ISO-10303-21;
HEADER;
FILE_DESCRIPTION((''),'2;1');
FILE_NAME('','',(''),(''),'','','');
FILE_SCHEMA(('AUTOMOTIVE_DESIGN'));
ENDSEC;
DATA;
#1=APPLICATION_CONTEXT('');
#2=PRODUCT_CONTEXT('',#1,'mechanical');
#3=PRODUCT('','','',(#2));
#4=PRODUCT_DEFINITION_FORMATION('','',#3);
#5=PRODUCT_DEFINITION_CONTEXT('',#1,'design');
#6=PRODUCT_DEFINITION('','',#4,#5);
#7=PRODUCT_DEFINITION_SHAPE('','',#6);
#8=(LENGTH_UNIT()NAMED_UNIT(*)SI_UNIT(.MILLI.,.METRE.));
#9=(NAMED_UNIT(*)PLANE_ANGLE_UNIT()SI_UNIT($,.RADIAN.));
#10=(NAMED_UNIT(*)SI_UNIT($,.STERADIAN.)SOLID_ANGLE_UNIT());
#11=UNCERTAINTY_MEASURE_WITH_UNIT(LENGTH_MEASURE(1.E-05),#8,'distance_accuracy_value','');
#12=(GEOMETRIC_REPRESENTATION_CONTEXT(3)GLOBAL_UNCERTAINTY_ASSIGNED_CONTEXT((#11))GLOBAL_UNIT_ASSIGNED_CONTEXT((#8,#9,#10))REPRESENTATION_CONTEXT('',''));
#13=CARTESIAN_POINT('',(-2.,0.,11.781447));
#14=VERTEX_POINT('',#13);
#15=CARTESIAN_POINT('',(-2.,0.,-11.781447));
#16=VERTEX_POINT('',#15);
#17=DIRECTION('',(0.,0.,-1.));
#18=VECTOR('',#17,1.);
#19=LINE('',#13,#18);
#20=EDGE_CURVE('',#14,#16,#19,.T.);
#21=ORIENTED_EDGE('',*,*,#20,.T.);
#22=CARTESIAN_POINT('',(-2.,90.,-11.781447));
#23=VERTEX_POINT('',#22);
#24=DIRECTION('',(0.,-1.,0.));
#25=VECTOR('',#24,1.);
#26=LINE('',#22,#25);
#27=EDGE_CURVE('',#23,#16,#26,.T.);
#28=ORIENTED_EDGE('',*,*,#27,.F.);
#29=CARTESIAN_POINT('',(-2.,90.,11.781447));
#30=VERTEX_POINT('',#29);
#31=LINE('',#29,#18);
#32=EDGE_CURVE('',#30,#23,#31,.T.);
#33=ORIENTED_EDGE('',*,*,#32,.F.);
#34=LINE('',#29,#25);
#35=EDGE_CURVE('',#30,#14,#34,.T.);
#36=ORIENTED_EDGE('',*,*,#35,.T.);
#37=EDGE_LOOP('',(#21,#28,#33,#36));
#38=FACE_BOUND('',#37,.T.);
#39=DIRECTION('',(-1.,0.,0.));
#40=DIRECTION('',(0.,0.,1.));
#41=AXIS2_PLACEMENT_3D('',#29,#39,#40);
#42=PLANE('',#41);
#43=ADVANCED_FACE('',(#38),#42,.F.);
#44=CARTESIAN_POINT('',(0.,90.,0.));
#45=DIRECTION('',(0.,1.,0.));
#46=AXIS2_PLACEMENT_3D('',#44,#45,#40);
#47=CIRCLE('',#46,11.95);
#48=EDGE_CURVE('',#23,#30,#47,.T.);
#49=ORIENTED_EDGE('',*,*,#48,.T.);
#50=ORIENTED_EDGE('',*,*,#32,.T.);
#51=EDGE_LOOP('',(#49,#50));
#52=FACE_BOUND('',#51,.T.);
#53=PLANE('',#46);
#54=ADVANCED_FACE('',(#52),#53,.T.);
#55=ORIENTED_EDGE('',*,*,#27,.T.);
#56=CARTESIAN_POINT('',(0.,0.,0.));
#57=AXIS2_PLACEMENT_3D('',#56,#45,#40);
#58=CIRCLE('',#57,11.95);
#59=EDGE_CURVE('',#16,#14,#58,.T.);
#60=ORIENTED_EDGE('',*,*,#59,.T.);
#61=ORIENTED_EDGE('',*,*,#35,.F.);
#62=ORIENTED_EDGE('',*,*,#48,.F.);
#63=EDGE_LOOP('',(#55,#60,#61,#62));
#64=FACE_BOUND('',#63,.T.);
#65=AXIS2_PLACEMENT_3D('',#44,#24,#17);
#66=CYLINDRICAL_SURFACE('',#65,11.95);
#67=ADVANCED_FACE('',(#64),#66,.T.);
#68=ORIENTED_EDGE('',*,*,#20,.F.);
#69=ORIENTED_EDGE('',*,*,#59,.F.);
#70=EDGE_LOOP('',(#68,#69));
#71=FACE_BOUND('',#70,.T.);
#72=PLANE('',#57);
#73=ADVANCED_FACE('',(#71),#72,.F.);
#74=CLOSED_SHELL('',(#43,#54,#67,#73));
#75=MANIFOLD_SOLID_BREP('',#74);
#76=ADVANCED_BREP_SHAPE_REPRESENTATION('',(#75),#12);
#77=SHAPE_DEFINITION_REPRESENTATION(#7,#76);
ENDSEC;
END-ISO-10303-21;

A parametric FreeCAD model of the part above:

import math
import FreeCAD as App
import Part
import Sketcher
from FreeCAD import Vector
Q = App.Units.Quantity

doc = App.newDocument("Part")
body = doc.addObject("PartDesign::Body", "Body")

# Sketch on XZ plane
sketch1 = body.newObject("Sketcher::SketchObject", "Sketch")
sketch1.AttachmentSupport = (doc.getObject("XZ_Plane"), [""])
sketch1.MapMode = "FlatFace"
sketch1.addGeometry(Part.LineSegment(Vector(-2, 11.781447, 0), Vector(-2, -11.781447, 0)), False)
sketch1.addGeometry(Part.ArcOfCircle(Part.Circle(Vector(0, 0, 0), Vector(0, 0, 1), 11.95), math.radians(99.634593), math.radians(260.365407)), False)
sketch1.addConstraint(Sketcher.Constraint("Coincident", 0, 1, 1, 1))
sketch1.addConstraint(Sketcher.Constraint("Coincident", 1, 2, 0, 2))
sketch1.addConstraint(Sketcher.Constraint("Vertical", 0))
sketch1.addConstraint(Sketcher.Constraint("Coincident", 1, 3, -1, 1))
sketch1.addConstraint(Sketcher.Constraint("Radius", 1, Q("11.95 mm")))
sketch1.addConstraint(Sketcher.Constraint("DistanceX", 0, 1, -1, 1, Q("2 mm")))
pad1 = body.newObject("PartDesign::Pad", "Pad")
pad1.Profile = sketch1
pad1.Length = 90
pad1.Reversed = True

doc.recompute()
